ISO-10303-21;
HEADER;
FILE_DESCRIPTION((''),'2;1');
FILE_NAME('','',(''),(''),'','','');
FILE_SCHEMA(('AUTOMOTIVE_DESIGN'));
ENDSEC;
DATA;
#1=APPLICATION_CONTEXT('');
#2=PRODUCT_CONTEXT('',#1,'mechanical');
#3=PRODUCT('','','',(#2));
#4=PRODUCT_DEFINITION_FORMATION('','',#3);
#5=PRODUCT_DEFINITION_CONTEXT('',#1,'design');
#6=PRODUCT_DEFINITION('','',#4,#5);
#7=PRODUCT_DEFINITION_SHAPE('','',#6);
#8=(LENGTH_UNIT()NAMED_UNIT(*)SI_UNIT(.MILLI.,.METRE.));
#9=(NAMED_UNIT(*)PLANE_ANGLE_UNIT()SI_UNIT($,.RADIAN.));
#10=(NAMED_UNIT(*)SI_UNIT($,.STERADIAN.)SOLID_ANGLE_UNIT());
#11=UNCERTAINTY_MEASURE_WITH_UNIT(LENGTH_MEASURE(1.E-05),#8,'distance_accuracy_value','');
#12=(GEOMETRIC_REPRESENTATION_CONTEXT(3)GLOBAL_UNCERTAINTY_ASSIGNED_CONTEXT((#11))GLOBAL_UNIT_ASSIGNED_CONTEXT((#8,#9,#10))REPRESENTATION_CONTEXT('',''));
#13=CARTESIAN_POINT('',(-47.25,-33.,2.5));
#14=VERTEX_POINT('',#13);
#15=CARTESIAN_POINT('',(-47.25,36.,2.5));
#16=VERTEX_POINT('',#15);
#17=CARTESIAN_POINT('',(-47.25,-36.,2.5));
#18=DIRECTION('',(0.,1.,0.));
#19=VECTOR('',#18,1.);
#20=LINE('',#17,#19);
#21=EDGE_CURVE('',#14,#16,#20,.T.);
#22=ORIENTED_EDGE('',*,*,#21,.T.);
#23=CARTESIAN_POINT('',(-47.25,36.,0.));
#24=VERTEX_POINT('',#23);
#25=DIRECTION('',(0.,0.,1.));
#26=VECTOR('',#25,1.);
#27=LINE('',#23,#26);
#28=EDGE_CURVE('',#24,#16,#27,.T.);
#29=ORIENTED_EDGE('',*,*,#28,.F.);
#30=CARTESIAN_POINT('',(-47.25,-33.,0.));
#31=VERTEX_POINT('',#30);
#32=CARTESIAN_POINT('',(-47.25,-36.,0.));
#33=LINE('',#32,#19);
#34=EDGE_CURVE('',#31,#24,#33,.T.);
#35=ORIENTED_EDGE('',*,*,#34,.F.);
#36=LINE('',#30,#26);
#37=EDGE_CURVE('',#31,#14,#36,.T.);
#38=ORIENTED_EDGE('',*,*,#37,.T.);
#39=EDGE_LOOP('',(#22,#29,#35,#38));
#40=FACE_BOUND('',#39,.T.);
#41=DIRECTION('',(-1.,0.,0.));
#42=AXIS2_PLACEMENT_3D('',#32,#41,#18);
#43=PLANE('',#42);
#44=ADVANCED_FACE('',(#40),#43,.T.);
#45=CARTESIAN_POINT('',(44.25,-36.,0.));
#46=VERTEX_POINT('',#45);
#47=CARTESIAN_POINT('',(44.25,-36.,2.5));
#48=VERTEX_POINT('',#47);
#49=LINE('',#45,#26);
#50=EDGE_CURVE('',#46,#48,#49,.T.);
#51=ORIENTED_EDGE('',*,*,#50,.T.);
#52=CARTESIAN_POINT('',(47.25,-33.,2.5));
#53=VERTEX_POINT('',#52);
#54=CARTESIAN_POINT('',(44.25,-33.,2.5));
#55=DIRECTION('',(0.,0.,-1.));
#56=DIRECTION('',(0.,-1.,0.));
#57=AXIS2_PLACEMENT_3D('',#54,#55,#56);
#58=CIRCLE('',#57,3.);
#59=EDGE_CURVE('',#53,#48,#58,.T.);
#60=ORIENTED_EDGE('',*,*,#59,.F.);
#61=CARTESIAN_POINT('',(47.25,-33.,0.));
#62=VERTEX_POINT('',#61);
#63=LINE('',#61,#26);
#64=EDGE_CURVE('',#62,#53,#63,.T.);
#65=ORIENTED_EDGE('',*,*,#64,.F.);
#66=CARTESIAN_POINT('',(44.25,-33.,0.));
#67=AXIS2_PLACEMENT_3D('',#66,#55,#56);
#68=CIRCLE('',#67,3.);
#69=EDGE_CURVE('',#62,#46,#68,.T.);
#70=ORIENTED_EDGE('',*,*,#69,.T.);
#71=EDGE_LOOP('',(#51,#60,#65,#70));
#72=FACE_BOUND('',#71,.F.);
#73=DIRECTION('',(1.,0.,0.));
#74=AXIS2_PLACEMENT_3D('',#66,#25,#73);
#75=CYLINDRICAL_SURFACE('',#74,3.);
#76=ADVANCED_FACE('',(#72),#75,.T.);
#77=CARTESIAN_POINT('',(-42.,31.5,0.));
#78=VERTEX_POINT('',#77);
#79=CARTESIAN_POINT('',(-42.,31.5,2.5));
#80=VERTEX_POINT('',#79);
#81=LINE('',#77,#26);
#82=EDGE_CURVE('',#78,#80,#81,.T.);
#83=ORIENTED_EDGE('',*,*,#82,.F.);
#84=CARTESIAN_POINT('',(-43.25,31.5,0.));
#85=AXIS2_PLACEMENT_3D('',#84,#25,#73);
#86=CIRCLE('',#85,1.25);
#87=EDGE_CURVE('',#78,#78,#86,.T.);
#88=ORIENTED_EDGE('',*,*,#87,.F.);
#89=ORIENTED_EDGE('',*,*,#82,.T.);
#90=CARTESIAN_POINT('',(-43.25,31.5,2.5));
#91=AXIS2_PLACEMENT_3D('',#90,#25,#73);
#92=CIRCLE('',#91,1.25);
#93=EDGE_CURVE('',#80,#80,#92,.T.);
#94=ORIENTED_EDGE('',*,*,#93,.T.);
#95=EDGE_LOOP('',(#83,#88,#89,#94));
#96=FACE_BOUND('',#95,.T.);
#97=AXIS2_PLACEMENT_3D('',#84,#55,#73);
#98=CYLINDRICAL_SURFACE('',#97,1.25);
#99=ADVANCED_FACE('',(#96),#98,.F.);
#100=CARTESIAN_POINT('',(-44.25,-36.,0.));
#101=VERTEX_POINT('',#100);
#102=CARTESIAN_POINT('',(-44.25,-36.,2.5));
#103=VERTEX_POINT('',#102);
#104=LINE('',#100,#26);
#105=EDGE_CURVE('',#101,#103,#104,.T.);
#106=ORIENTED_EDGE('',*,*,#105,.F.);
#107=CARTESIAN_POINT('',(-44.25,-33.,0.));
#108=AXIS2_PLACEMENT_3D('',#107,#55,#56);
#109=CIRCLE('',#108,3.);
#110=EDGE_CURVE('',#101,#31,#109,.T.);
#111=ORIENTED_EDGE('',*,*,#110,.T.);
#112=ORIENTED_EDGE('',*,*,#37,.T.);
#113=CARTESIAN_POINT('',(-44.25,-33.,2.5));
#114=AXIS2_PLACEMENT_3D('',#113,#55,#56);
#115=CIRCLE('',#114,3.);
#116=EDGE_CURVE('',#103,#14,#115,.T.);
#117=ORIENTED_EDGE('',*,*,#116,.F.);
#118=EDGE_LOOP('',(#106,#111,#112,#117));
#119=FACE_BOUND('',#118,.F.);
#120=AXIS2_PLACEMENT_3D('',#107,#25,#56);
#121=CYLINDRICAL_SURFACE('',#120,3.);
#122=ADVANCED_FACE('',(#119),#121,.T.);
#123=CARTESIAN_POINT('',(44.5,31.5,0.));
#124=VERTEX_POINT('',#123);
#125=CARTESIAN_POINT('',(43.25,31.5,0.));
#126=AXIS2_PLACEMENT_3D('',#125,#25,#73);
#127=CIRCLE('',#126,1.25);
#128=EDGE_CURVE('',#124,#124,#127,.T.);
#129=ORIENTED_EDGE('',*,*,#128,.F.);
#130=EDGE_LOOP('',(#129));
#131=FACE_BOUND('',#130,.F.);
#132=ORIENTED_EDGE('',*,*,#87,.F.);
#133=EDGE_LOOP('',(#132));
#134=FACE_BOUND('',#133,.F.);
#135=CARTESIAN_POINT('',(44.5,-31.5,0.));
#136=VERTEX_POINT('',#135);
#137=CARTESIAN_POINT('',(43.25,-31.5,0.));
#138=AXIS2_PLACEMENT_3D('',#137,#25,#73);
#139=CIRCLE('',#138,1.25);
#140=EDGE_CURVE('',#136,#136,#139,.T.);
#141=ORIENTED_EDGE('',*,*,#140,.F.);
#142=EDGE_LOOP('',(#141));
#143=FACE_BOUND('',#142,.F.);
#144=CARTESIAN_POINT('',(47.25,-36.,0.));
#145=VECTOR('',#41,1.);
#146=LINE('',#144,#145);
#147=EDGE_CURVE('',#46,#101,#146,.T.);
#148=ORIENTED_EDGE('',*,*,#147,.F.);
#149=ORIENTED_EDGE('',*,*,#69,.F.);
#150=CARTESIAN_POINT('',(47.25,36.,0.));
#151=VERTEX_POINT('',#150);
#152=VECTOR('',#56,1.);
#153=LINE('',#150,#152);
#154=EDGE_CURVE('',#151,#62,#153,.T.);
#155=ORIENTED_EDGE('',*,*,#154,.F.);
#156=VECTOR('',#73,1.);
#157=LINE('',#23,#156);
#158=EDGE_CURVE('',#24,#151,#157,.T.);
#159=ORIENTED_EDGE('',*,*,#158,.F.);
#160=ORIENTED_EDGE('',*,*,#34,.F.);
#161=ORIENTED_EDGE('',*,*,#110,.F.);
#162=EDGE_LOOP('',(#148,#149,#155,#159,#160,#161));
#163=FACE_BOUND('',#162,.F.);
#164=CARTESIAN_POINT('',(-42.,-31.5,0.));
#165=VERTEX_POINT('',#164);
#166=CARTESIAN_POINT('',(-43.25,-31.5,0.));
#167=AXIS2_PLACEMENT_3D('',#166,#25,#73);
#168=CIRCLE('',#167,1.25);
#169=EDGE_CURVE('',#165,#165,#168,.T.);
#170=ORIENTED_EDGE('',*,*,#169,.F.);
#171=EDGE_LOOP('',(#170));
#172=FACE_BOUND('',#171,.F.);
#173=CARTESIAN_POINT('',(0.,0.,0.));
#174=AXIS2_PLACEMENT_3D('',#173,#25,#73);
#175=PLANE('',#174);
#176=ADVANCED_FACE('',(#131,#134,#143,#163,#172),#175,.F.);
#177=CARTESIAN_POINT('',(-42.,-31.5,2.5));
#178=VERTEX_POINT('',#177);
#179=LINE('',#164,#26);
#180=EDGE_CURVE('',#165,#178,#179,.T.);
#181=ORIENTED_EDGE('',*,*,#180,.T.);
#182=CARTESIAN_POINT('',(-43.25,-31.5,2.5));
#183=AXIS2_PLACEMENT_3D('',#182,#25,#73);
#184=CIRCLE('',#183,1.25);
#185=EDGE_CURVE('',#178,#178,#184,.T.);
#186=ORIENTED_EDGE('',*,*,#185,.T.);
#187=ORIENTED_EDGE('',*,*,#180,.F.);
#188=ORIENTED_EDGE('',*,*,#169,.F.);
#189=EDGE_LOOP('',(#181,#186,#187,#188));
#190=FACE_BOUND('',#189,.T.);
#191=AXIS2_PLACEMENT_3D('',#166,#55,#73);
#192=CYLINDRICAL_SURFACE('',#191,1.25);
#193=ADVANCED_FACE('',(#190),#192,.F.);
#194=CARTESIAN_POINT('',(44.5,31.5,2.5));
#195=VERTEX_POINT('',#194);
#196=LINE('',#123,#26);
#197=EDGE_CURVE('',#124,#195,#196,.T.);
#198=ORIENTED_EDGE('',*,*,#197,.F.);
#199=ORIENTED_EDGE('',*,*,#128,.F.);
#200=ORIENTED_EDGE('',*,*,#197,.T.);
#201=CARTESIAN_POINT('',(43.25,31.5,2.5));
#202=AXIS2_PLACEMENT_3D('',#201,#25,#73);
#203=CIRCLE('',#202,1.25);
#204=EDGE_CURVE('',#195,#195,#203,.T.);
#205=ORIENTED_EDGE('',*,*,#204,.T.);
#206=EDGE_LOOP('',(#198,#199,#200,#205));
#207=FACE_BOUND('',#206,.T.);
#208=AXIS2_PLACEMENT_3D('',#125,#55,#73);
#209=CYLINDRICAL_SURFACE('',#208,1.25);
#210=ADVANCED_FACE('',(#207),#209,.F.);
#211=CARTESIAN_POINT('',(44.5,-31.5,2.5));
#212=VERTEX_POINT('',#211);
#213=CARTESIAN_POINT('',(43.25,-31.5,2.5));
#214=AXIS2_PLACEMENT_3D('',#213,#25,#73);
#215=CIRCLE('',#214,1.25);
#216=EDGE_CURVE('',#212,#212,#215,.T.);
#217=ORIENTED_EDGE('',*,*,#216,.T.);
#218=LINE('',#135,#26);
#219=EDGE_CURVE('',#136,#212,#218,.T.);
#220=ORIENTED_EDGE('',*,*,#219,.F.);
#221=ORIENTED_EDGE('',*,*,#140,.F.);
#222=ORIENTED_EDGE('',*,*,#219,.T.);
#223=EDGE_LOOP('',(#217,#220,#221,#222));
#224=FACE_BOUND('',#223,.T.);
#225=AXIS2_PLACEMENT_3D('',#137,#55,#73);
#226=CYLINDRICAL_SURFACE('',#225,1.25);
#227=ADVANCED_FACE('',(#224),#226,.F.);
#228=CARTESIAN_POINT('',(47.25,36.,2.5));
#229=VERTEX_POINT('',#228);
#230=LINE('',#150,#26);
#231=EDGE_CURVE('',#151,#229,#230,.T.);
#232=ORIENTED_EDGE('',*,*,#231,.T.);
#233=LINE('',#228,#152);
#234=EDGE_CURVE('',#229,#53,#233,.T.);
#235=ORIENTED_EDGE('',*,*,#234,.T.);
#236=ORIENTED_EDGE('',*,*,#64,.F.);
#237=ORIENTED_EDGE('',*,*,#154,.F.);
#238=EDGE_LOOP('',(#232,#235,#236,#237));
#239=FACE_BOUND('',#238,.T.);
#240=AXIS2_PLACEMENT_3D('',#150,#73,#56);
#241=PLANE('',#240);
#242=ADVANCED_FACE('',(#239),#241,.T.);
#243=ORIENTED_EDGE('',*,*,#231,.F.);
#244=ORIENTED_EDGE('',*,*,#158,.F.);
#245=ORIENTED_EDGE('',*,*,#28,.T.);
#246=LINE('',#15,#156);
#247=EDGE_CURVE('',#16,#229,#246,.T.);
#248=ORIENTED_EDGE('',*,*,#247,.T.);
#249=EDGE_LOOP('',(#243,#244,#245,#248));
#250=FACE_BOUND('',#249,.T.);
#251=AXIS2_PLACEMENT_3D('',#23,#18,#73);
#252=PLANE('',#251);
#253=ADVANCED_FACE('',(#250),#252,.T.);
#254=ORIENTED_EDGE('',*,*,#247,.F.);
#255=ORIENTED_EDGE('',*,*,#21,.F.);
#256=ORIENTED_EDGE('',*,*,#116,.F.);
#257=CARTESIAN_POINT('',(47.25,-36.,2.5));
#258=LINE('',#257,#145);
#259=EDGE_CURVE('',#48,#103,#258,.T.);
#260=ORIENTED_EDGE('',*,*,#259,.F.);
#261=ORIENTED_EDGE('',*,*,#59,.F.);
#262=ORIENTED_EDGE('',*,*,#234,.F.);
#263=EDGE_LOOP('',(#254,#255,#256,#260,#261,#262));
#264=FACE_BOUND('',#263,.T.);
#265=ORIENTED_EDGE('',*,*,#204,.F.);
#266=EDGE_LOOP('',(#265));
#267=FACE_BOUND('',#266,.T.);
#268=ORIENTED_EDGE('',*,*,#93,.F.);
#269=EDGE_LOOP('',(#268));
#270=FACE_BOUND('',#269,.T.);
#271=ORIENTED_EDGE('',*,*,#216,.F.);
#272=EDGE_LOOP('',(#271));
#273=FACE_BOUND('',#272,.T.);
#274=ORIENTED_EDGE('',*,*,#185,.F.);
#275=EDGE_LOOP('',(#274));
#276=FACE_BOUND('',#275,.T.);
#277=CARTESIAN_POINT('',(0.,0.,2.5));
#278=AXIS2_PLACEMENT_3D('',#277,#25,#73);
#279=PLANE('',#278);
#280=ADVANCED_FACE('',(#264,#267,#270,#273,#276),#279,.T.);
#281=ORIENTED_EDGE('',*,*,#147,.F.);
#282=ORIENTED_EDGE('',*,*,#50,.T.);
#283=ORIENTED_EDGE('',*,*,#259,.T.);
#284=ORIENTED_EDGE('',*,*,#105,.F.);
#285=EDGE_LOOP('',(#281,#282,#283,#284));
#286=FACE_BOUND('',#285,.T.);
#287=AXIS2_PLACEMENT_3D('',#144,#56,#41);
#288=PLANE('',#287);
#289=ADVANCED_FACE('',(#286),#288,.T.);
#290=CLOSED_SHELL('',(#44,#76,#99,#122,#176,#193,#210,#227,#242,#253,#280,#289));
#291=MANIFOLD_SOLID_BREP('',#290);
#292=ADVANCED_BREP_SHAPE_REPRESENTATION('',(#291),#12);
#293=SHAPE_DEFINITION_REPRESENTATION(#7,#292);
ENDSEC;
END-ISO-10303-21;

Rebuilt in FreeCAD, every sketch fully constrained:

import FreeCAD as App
import Part
import Sketcher

V = App.Vector


def edges_at(feature, points):
    """Names of the edges that pass closest to the given points."""
    edges = feature.Shape.Edges
    near = lambda p: min(range(len(edges)), key=lambda i: edges[i].distToShape(Part.Vertex(*p))[0])
    return sorted({f"Edge{near(p) + 1}" for p in points})

doc = App.newDocument("Part")
body = doc.addObject("PartDesign::Body", "Body")

# Sketch on XY plane
sketch1 = doc.addObject("Sketcher::SketchObject", "Sketch")
body.addObject(sketch1)
sketch1.AttachmentSupport = (doc.XY_Plane, [""])
sketch1.MapMode = "FlatFace"
sketch1.addGeometry(Part.LineSegment(V(47.25, 36, 0), V(-47.25, 36, 0)), False)
sketch1.addGeometry(Part.LineSegment(V(-47.25, 36, 0), V(-47.25, -36, 0)), False)
sketch1.addGeometry(Part.LineSegment(V(-47.25, -36, 0), V(47.25, -36, 0)), False)
sketch1.addGeometry(Part.LineSegment(V(47.25, -36, 0), V(47.25, 36, 0)), False)
sketch1.addGeometry(Part.Circle(V(-43.25, -31.5, 0), V(0, 0, 1), 1.25), False)
sketch1.addGeometry(Part.Circle(V(43.25, -31.5, 0), V(0, 0, 1), 1.25), False)
sketch1.addGeometry(Part.Circle(V(-43.25, 31.5, 0), V(0, 0, 1), 1.25), False)
sketch1.addGeometry(Part.Circle(V(43.25, 31.5, 0), V(0, 0, 1), 1.25), False)
sketch1.addConstraint(Sketcher.Constraint("Coincident", 0, 2, 1, 1))
sketch1.addConstraint(Sketcher.Constraint("Coincident", 1, 2, 2, 1))
sketch1.addConstraint(Sketcher.Constraint("Coincident", 2, 2, 3, 1))
sketch1.addConstraint(Sketcher.Constraint("Coincident", 3, 2, 0, 1))
sketch1.addConstraint(Sketcher.Constraint("Horizontal", 0))
sketch1.addConstraint(Sketcher.Constraint("Vertical", 1))
sketch1.addConstraint(Sketcher.Constraint("Horizontal", 2))
sketch1.addConstraint(Sketcher.Constraint("Vertical", 3))
sketch1.addConstraint(Sketcher.Constraint("Equal", 4, 5))
sketch1.addConstraint(Sketcher.Constraint("Equal", 5, 6))
sketch1.addConstraint(Sketcher.Constraint("Equal", 6, 7))
sketch1.addConstraint(Sketcher.Constraint("Symmetric", 5, 3, 6, 3, -1, 1))
sketch1.addConstraint(Sketcher.Constraint("Symmetric", 4, 3, 7, 3, -1, 1))
sketch1.addConstraint(Sketcher.Constraint("Symmetric", 0, 2, 2, 2, -1, 1))
sketch1.addConstraint(Sketcher.Constraint("Symmetric", 4, 3, 5, 3, -2))
sketch1.addConstraint(Sketcher.Constraint("Diameter", 4, 2.5))
sketch1.addConstraint(Sketcher.Constraint("DistanceY", 1, 2, 1, 1, 72.0))
sketch1.addConstraint(Sketcher.Constraint("DistanceX", 0, 2, 0, 1, 94.5))
sketch1.addConstraint(Sketcher.Constraint("DistanceY", 4, 3, 6, 3, 63.0))
sketch1.addConstraint(Sketcher.Constraint("DistanceX", 4, 3, 5, 3, 86.5))
pad1 = doc.addObject("PartDesign::Pad", "Pad")
body.addObject(pad1)
pad1.Profile = sketch1
pad1.Length = 2.5
doc.recompute()

fillet = doc.addObject("PartDesign::Fillet", "Fillet")
body.addObject(fillet)
fillet.Base = (pad1, edges_at(pad1, [(47.25, -36, 1.25), (-47.25, -36, 1.25)]))
fillet.Radius = 3

doc.recompute()
